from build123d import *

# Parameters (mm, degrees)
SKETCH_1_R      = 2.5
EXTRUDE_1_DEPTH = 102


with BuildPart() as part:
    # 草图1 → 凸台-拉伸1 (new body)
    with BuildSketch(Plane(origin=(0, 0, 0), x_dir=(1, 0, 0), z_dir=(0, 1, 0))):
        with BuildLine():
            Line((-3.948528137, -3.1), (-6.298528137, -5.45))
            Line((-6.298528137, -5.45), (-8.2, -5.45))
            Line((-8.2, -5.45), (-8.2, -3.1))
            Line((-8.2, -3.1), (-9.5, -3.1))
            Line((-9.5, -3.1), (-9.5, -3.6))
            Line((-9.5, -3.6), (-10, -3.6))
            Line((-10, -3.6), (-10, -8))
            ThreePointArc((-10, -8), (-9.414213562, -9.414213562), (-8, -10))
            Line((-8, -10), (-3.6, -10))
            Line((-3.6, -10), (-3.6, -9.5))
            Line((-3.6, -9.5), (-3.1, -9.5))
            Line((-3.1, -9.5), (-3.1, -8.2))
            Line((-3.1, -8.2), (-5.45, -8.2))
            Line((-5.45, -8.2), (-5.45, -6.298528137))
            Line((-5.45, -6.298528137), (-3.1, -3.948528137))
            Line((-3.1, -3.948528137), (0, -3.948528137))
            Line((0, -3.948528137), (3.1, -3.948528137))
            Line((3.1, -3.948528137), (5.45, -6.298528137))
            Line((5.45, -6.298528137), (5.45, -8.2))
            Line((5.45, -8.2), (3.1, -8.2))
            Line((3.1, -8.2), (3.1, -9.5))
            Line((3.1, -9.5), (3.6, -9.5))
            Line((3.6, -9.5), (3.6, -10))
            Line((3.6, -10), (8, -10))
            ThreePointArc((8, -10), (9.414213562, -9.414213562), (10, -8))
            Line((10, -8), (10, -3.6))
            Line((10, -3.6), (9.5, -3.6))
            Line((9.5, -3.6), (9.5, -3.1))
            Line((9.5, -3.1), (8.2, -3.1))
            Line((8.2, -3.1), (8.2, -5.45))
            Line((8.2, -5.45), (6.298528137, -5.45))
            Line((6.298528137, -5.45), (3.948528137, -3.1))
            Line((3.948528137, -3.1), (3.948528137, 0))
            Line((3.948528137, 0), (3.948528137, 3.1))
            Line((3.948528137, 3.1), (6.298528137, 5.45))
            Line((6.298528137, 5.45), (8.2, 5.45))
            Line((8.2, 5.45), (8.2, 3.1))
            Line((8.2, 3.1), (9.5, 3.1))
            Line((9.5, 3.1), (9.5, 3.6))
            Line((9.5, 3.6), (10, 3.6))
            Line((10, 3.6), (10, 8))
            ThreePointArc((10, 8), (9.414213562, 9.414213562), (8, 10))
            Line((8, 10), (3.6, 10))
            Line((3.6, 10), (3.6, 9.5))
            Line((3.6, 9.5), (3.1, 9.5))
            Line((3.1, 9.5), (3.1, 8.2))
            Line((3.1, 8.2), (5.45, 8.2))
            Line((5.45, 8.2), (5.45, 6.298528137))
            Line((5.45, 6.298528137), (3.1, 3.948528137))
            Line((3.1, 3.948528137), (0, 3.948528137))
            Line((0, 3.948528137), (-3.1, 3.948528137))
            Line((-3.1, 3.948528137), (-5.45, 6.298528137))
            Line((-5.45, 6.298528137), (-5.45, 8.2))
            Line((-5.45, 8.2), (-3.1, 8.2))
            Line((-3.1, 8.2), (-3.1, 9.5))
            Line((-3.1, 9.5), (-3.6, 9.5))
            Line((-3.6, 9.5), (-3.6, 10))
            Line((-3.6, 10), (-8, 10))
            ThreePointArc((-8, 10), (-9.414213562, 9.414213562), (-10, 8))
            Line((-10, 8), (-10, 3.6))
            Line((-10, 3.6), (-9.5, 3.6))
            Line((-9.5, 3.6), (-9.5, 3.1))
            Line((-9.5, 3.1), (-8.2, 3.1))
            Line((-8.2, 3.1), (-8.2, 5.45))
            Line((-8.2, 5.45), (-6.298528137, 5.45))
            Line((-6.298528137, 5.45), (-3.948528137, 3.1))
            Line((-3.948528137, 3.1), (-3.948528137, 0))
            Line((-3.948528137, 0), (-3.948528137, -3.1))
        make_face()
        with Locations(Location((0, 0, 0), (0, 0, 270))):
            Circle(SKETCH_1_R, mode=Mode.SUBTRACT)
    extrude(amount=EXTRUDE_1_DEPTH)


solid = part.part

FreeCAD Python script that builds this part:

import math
import FreeCAD as App
import Part
import Sketcher

V = App.Vector
Q = App.Units.Quantity

doc = App.newDocument("Part")
body = doc.addObject("PartDesign::Body", "Body")

sketch1 = doc.addObject("Sketcher::SketchObject", "Sketch")
body.addObject(sketch1)
sketch1.AttachmentSupport = (doc.XZ_Plane, [""])
sketch1.MapMode = "FlatFace"
sketch1.addGeometry([
    Part.LineSegment(V(-3.9, 3.1, 0), V(-6.3, 5.5, 0)),
    Part.LineSegment(V(-6.3, 5.5, 0), V(-8.2, 5.5, 0)),
    Part.LineSegment(V(-8.2, 5.5, 0), V(-8.2, 3.1, 0)),
    Part.LineSegment(V(-8.2, 3.1, 0), V(-9.5, 3.1, 0)),
    Part.LineSegment(V(-9.5, 3.1, 0), V(-9.5, 3.6, 0)),
    Part.LineSegment(V(-9.5, 3.6, 0), V(-10, 3.6, 0)),
    Part.LineSegment(V(-10, 3.6, 0), V(-10, 8, 0)),
    Part.ArcOfCircle(Part.Circle(V(-8, 8, 0), V(0, 0, 1), 2), math.radians(90), math.radians(180)),
    Part.LineSegment(V(-8, 10, 0), V(-3.6, 10, 0)),
    Part.LineSegment(V(-3.6, 10, 0), V(-3.6, 9.5, 0)),
    Part.LineSegment(V(-3.6, 9.5, 0), V(-3.1, 9.5, 0)),
    Part.LineSegment(V(-3.1, 9.5, 0), V(-3.1, 8.2, 0)),
    Part.LineSegment(V(-3.1, 8.2, 0), V(-5.5, 8.2, 0)),
    Part.LineSegment(V(-5.5, 8.2, 0), V(-5.5, 6.3, 0)),
    Part.LineSegment(V(-5.5, 6.3, 0), V(-3.1, 3.9, 0)),
    Part.LineSegment(V(-3.1, 3.9, 0), V(3.1, 3.9, 0)),
    Part.LineSegment(V(3.1, 3.9, 0), V(5.5, 6.3, 0)),
    Part.LineSegment(V(5.5, 6.3, 0), V(5.5, 8.2, 0)),
    Part.LineSegment(V(5.5, 8.2, 0), V(3.1, 8.2, 0)),
    Part.LineSegment(V(3.1, 8.2, 0), V(3.1, 9.5, 0)),
    Part.LineSegment(V(3.1, 9.5, 0), V(3.6, 9.5, 0)),
    Part.LineSegment(V(3.6, 9.5, 0), V(3.6, 10, 0)),
    Part.LineSegment(V(3.6, 10, 0), V(8, 10, 0)),
    Part.ArcOfCircle(Part.Circle(V(8, 8, 0), V(0, 0, 1), 2), math.radians(0), math.radians(90)),
    Part.LineSegment(V(10, 8, 0), V(10, 3.6, 0)),
    Part.LineSegment(V(10, 3.6, 0), V(9.5, 3.6, 0)),
    Part.LineSegment(V(9.5, 3.6, 0), V(9.5, 3.1, 0)),
    Part.LineSegment(V(9.5, 3.1, 0), V(8.2, 3.1, 0)),
    Part.LineSegment(V(8.2, 3.1, 0), V(8.2, 5.5, 0)),
    Part.LineSegment(V(8.2, 5.5, 0), V(6.3, 5.5, 0)),
    Part.LineSegment(V(6.3, 5.5, 0), V(3.9, 3.1, 0)),
    Part.LineSegment(V(3.9, 3.1, 0), V(3.9, -3.1, 0)),
    Part.LineSegment(V(3.9, -3.1, 0), V(6.3, -5.5, 0)),
    Part.LineSegment(V(6.3, -5.5, 0), V(8.2, -5.5, 0)),
    Part.LineSegment(V(8.2, -5.5, 0), V(8.2, -3.1, 0)),
    Part.LineSegment(V(8.2, -3.1, 0), V(9.5, -3.1, 0)),
    Part.LineSegment(V(9.5, -3.1, 0), V(9.5, -3.6, 0)),
    Part.LineSegment(V(9.5, -3.6, 0), V(10, -3.6, 0)),
    Part.LineSegment(V(10, -3.6, 0), V(10, -8, 0)),
    Part.ArcOfCircle(Part.Circle(V(8, -8, 0), V(0, 0, 1), 2), math.radians(-90), math.radians(0)),
    Part.LineSegment(V(8, -10, 0), V(3.6, -10, 0)),
    Part.LineSegment(V(3.6, -10, 0), V(3.6, -9.5, 0)),
    Part.LineSegment(V(3.6, -9.5, 0), V(3.1, -9.5, 0)),
    Part.LineSegment(V(3.1, -9.5, 0), V(3.1, -8.2, 0)),
    Part.LineSegment(V(3.1, -8.2, 0), V(5.5, -8.2, 0)),
    Part.LineSegment(V(5.5, -8.2, 0), V(5.5, -6.3, 0)),
    Part.LineSegment(V(5.5, -6.3, 0), V(3.1, -3.9, 0)),
    Part.LineSegment(V(3.1, -3.9, 0), V(-3.1, -3.9, 0)),
    Part.LineSegment(V(-3.1, -3.9, 0), V(-5.5, -6.3, 0)),
    Part.LineSegment(V(-5.5, -6.3, 0), V(-5.5, -8.2, 0)),
    Part.LineSegment(V(-5.5, -8.2, 0), V(-3.1, -8.2, 0)),
    Part.LineSegment(V(-3.1, -8.2, 0), V(-3.1, -9.5, 0)),
    Part.LineSegment(V(-3.1, -9.5, 0), V(-3.6, -9.5, 0)),
    Part.LineSegment(V(-3.6, -9.5, 0), V(-3.6, -10, 0)),
    Part.LineSegment(V(-3.6, -10, 0), V(-8, -10, 0)),
    Part.ArcOfCircle(Part.Circle(V(-8, -8, 0), V(0, 0, 1), 2), math.radians(-180), math.radians(-90)),
    Part.LineSegment(V(-10, -8, 0), V(-10, -3.6, 0)),
    Part.LineSegment(V(-10, -3.6, 0), V(-9.5, -3.6, 0)),
    Part.LineSegment(V(-9.5, -3.6, 0), V(-9.5, -3.1, 0)),
    Part.LineSegment(V(-9.5, -3.1, 0), V(-8.2, -3.1, 0)),
    Part.LineSegment(V(-8.2, -3.1, 0), V(-8.2, -5.5, 0)),
    Part.LineSegment(V(-8.2, -5.5, 0), V(-6.3, -5.5, 0)),
    Part.LineSegment(V(-6.3, -5.5, 0), V(-3.9, -3.1, 0)),
    Part.LineSegment(V(-3.9, -3.1, 0), V(-3.9, 3.1, 0)),
    Part.Circle(V(0, 0, 0), V(0, 0, 1), 2.5),
], False)
sketch1.addConstraint([
    Sketcher.Constraint("Coincident", 0, 2, 1, 1),
    Sketcher.Constraint("Coincident", 1, 2, 2, 1),
    Sketcher.Constraint("Coincident", 2, 2, 3, 1),
    Sketcher.Constraint("Coincident", 3, 2, 4, 1),
    Sketcher.Constraint("Coincident", 4, 2, 5, 1),
    Sketcher.Constraint("Coincident", 5, 2, 6, 1),
    Sketcher.Constraint("Tangent", 6, 2, 7, 2),
    Sketcher.Constraint("Tangent", 7, 1, 8, 1),
    Sketcher.Constraint("Coincident", 8, 2, 9, 1),
    Sketcher.Constraint("Coincident", 9, 2, 10, 1),
    Sketcher.Constraint("Coincident", 10, 2, 11, 1),
    Sketcher.Constraint("Coincident", 11, 2, 12, 1),
    Sketcher.Constraint("Coincident", 12, 2, 13, 1),
    Sketcher.Constraint("Coincident", 13, 2, 14, 1),
    Sketcher.Constraint("Coincident", 14, 2, 15, 1),
    Sketcher.Constraint("Coincident", 15, 2, 16, 1),
    Sketcher.Constraint("Coincident", 16, 2, 17, 1),
    Sketcher.Constraint("Coincident", 17, 2, 18, 1),
    Sketcher.Constraint("Coincident", 18, 2, 19, 1),
    Sketcher.Constraint("Coincident", 19, 2, 20, 1),
    Sketcher.Constraint("Coincident", 20, 2, 21, 1),
    Sketcher.Constraint("Coincident", 21, 2, 22, 1),
    Sketcher.Constraint("Tangent", 22, 2, 23, 2),
    Sketcher.Constraint("Tangent", 23, 1, 24, 1),
    Sketcher.Constraint("Coincident", 24, 2, 25, 1),
    Sketcher.Constraint("Coincident", 25, 2, 26, 1),
    Sketcher.Constraint("Coincident", 26, 2, 27, 1),
    Sketcher.Constraint("Coincident", 27, 2, 28, 1),
    Sketcher.Constraint("Coincident", 28, 2, 29, 1),
    Sketcher.Constraint("Coincident", 29, 2, 30, 1),
    Sketcher.Constraint("Coincident", 30, 2, 31, 1),
    Sketcher.Constraint("Coincident", 31, 2, 32, 1),
    Sketcher.Constraint("Coincident", 32, 2, 33, 1),
    Sketcher.Constraint("Coincident", 33, 2, 34, 1),
    Sketcher.Constraint("Coincident", 34, 2, 35, 1),
    Sketcher.Constraint("Coincident", 35, 2, 36, 1),
    Sketcher.Constraint("Coincident", 36, 2, 37, 1),
    Sketcher.Constraint("Coincident", 37, 2, 38, 1),
    Sketcher.Constraint("Tangent", 38, 2, 39, 2),
    Sketcher.Constraint("Tangent", 39, 1, 40, 1),
    Sketcher.Constraint("Coincident", 40, 2, 41, 1),
    Sketcher.Constraint("Coincident", 41, 2, 42, 1),
    Sketcher.Constraint("Coincident", 42, 2, 43, 1),
    Sketcher.Constraint("Coincident", 43, 2, 44, 1),
    Sketcher.Constraint("Coincident", 44, 2, 45, 1),
    Sketcher.Constraint("Coincident", 45, 2, 46, 1),
    Sketcher.Constraint("Coincident", 46, 2, 47, 1),
    Sketcher.Constraint("Coincident", 47, 2, 48, 1),
    Sketcher.Constraint("Coincident", 48, 2, 49, 1),
    Sketcher.Constraint("Coincident", 49, 2, 50, 1),
    Sketcher.Constraint("Coincident", 50, 2, 51, 1),
    Sketcher.Constraint("Coincident", 51, 2, 52, 1),
    Sketcher.Constraint("Coincident", 52, 2, 53, 1),
    Sketcher.Constraint("Coincident", 53, 2, 54, 1),
    Sketcher.Constraint("Tangent", 54, 2, 55, 2),
    Sketcher.Constraint("Tangent", 55, 1, 56, 1),
    Sketcher.Constraint("Coincident", 56, 2, 57, 1),
    Sketcher.Constraint("Coincident", 57, 2, 58, 1),
    Sketcher.Constraint("Coincident", 58, 2, 59, 1),
    Sketcher.Constraint("Coincident", 59, 2, 60, 1),
    Sketcher.Constraint("Coincident", 60, 2, 61, 1),
    Sketcher.Constraint("Coincident", 61, 2, 62, 1),
    Sketcher.Constraint("Coincident", 62, 2, 63, 1),
    Sketcher.Constraint("Coincident", 63, 2, 0, 1),
    Sketcher.Constraint("Horizontal", 1),
    Sketcher.Constraint("Vertical", 2),
    Sketcher.Constraint("Horizontal", 3),
    Sketcher.Constraint("Vertical", 4),
    Sketcher.Constraint("Horizontal", 5),
    Sketcher.Constraint("Vertical", 6),
    Sketcher.Constraint("Horizontal", 8),
    Sketcher.Constraint("Vertical", 9),
    Sketcher.Constraint("Horizontal", 10),
    Sketcher.Constraint("Vertical", 11),
    Sketcher.Constraint("Horizontal", 12),
    Sketcher.Constraint("Vertical", 13),
    Sketcher.Constraint("Horizontal", 15),
    Sketcher.Constraint("Vertical", 17),
    Sketcher.Constraint("Horizontal", 18),
    Sketcher.Constraint("Vertical", 19),
    Sketcher.Constraint("Horizontal", 20),
    Sketcher.Constraint("Vertical", 21),
    Sketcher.Constraint("Horizontal", 22),
    Sketcher.Constraint("Vertical", 24),
    Sketcher.Constraint("Horizontal", 25),
    Sketcher.Constraint("Vertical", 26),
    Sketcher.Constraint("Horizontal", 27),
    Sketcher.Constraint("Vertical", 28),
    Sketcher.Constraint("Horizontal", 29),
    Sketcher.Constraint("Vertical", 31),
    Sketcher.Constraint("Horizontal", 33),
    Sketcher.Constraint("Vertical", 34),
    Sketcher.Constraint("Horizontal", 35),
    Sketcher.Constraint("Vertical", 36),
    Sketcher.Constraint("Horizontal", 37),
    Sketcher.Constraint("Vertical", 38),
    Sketcher.Constraint("Horizontal", 40),
    Sketcher.Constraint("Vertical", 41),
    Sketcher.Constraint("Horizontal", 42),
    Sketcher.Constraint("Vertical", 43),
    Sketcher.Constraint("Horizontal", 44),
    Sketcher.Constraint("Vertical", 45),
    Sketcher.Constraint("Horizontal", 47),
    Sketcher.Constraint("Vertical", 49),
    Sketcher.Constraint("Horizontal", 50),
    Sketcher.Constraint("Vertical", 51),
    Sketcher.Constraint("Horizontal", 52),
    Sketcher.Constraint("Vertical", 53),
    Sketcher.Constraint("Horizontal", 54),
    Sketcher.Constraint("Vertical", 56),
    Sketcher.Constraint("Horizontal", 57),
    Sketcher.Constraint("Vertical", 58),
    Sketcher.Constraint("Horizontal", 59),
    Sketcher.Constraint("Vertical", 60),
    Sketcher.Constraint("Horizontal", 61),
    Sketcher.Constraint("Vertical", 63),
    Sketcher.Constraint("Coincident", 64, 3, -1, 1),
    Sketcher.Constraint("Equal", 7, 23),
    Sketcher.Constraint("Equal", 23, 39),
    Sketcher.Constraint("Equal", 39, 55),
    Sketcher.Constraint("Symmetric", 7, 3, 39, 3, -1, 1),
    Sketcher.Constraint("Symmetric", 23, 3, 55, 3, -1, 1),
    Sketcher.Constraint("Symmetric", 0, 2, 32, 2, -1, 1),
    Sketcher.Constraint("Symmetric", 2, 2, 34, 2, -1, 1),
    Sketcher.Constraint("Symmetric", 4, 2, 36, 2, -1, 1),
    Sketcher.Constraint("Symmetric", 9, 2, 41, 2, -1, 1),
    Sketcher.Constraint("Symmetric", 11, 2, 43, 2, -1, 1),
    Sketcher.Constraint("Symmetric", 13, 2, 45, 2, -1, 1),
    Sketcher.Constraint("Symmetric", 14, 2, 46, 2, -1, 1),
    Sketcher.Constraint("Symmetric", 16, 2, 48, 2, -1, 1),
    Sketcher.Constraint("Symmetric", 18, 2, 50, 2, -1, 1),
    Sketcher.Constraint("Symmetric", 20, 2, 52, 2, -1, 1),
    Sketcher.Constraint("Symmetric", 25, 2, 57, 2, -1, 1),
    Sketcher.Constraint("Symmetric", 27, 2, 59, 2, -1, 1),
    Sketcher.Constraint("Symmetric", 29, 2, 61, 2, -1, 1),
    Sketcher.Constraint("Symmetric", 30, 2, 62, 2, -1, 1),
    Sketcher.Constraint("Symmetric", 7, 3, 23, 3, -2),
    Sketcher.Constraint("Symmetric", 13, 2, 16, 2, -2),
    Sketcher.Constraint("Symmetric", 11, 2, 18, 2, -2),
    Sketcher.Constraint("Symmetric", 9, 2, 20, 2, -2),
    Sketcher.Constraint("Symmetric", 4, 2, 25, 2, -2),
    Sketcher.Constraint("Symmetric", 2, 2, 27, 2, -2),
    Sketcher.Constraint("Symmetric", 0, 2, 29, 2, -2),
    Sketcher.Constraint("Parallel", 0, 14),
    Sketcher.Constraint("Perpendicular", 14, 16),
    Sketcher.Constraint("Parallel", 16, 30),
    Sketcher.Constraint("Perpendicular", 30, 32),
    Sketcher.Constraint("Perpendicular", 46, 48),
    Sketcher.Constraint("Horizontal", 27, 2, 30, 2),
    Sketcher.Constraint("Horizontal", 31, 2, 34, 2),
    Sketcher.Constraint("Vertical", 11, 2, 14, 2),
    Sketcher.Constraint("Equal", 5, 10),
    Sketcher.Constraint("Equal", 50, 2),
    Sketcher.Constraint("Equal", 57, 4),
    Sketcher.Constraint("Equal", 54, 6),
    Sketcher.Constraint("Equal", 4, 9),
    Sketcher.Constraint("Equal", 59, 11),
    Sketcher.Constraint("Equal", 61, 13),
    Sketcher.Constraint("Equal", 47, 31),
    Sketcher.Constraint("Diameter", 64, Q("5 mm")),
    Sketcher.Constraint("Radius", 7, Q("2 mm")),
    Sketcher.Constraint("DistanceX", 3, 2, 3, 1, Q("1.3 mm")),
    Sketcher.Constraint("DistanceX", 5, 2, 5, 1, Q("0.5 mm")),
    Sketcher.Constraint("DistanceX", 8, 1, 8, 2, Q("4.4 mm")),
    Sketcher.Constraint("DistanceX", 15, 1, 15, 2, Q("6.2 mm")),
    Sketcher.Constraint("DistanceX", 12, 2, 12, 1, Q("2.35 mm")),
    Sketcher.Constraint("DistanceX", 1, 2, 1, 1, Q("1.901472 mm")),
])
pad1 = doc.addObject("PartDesign::Pad", "Pad")
body.addObject(pad1)
pad1.Profile = sketch1
pad1.Length = 102
pad1.Reversed = True

doc.recompute()
